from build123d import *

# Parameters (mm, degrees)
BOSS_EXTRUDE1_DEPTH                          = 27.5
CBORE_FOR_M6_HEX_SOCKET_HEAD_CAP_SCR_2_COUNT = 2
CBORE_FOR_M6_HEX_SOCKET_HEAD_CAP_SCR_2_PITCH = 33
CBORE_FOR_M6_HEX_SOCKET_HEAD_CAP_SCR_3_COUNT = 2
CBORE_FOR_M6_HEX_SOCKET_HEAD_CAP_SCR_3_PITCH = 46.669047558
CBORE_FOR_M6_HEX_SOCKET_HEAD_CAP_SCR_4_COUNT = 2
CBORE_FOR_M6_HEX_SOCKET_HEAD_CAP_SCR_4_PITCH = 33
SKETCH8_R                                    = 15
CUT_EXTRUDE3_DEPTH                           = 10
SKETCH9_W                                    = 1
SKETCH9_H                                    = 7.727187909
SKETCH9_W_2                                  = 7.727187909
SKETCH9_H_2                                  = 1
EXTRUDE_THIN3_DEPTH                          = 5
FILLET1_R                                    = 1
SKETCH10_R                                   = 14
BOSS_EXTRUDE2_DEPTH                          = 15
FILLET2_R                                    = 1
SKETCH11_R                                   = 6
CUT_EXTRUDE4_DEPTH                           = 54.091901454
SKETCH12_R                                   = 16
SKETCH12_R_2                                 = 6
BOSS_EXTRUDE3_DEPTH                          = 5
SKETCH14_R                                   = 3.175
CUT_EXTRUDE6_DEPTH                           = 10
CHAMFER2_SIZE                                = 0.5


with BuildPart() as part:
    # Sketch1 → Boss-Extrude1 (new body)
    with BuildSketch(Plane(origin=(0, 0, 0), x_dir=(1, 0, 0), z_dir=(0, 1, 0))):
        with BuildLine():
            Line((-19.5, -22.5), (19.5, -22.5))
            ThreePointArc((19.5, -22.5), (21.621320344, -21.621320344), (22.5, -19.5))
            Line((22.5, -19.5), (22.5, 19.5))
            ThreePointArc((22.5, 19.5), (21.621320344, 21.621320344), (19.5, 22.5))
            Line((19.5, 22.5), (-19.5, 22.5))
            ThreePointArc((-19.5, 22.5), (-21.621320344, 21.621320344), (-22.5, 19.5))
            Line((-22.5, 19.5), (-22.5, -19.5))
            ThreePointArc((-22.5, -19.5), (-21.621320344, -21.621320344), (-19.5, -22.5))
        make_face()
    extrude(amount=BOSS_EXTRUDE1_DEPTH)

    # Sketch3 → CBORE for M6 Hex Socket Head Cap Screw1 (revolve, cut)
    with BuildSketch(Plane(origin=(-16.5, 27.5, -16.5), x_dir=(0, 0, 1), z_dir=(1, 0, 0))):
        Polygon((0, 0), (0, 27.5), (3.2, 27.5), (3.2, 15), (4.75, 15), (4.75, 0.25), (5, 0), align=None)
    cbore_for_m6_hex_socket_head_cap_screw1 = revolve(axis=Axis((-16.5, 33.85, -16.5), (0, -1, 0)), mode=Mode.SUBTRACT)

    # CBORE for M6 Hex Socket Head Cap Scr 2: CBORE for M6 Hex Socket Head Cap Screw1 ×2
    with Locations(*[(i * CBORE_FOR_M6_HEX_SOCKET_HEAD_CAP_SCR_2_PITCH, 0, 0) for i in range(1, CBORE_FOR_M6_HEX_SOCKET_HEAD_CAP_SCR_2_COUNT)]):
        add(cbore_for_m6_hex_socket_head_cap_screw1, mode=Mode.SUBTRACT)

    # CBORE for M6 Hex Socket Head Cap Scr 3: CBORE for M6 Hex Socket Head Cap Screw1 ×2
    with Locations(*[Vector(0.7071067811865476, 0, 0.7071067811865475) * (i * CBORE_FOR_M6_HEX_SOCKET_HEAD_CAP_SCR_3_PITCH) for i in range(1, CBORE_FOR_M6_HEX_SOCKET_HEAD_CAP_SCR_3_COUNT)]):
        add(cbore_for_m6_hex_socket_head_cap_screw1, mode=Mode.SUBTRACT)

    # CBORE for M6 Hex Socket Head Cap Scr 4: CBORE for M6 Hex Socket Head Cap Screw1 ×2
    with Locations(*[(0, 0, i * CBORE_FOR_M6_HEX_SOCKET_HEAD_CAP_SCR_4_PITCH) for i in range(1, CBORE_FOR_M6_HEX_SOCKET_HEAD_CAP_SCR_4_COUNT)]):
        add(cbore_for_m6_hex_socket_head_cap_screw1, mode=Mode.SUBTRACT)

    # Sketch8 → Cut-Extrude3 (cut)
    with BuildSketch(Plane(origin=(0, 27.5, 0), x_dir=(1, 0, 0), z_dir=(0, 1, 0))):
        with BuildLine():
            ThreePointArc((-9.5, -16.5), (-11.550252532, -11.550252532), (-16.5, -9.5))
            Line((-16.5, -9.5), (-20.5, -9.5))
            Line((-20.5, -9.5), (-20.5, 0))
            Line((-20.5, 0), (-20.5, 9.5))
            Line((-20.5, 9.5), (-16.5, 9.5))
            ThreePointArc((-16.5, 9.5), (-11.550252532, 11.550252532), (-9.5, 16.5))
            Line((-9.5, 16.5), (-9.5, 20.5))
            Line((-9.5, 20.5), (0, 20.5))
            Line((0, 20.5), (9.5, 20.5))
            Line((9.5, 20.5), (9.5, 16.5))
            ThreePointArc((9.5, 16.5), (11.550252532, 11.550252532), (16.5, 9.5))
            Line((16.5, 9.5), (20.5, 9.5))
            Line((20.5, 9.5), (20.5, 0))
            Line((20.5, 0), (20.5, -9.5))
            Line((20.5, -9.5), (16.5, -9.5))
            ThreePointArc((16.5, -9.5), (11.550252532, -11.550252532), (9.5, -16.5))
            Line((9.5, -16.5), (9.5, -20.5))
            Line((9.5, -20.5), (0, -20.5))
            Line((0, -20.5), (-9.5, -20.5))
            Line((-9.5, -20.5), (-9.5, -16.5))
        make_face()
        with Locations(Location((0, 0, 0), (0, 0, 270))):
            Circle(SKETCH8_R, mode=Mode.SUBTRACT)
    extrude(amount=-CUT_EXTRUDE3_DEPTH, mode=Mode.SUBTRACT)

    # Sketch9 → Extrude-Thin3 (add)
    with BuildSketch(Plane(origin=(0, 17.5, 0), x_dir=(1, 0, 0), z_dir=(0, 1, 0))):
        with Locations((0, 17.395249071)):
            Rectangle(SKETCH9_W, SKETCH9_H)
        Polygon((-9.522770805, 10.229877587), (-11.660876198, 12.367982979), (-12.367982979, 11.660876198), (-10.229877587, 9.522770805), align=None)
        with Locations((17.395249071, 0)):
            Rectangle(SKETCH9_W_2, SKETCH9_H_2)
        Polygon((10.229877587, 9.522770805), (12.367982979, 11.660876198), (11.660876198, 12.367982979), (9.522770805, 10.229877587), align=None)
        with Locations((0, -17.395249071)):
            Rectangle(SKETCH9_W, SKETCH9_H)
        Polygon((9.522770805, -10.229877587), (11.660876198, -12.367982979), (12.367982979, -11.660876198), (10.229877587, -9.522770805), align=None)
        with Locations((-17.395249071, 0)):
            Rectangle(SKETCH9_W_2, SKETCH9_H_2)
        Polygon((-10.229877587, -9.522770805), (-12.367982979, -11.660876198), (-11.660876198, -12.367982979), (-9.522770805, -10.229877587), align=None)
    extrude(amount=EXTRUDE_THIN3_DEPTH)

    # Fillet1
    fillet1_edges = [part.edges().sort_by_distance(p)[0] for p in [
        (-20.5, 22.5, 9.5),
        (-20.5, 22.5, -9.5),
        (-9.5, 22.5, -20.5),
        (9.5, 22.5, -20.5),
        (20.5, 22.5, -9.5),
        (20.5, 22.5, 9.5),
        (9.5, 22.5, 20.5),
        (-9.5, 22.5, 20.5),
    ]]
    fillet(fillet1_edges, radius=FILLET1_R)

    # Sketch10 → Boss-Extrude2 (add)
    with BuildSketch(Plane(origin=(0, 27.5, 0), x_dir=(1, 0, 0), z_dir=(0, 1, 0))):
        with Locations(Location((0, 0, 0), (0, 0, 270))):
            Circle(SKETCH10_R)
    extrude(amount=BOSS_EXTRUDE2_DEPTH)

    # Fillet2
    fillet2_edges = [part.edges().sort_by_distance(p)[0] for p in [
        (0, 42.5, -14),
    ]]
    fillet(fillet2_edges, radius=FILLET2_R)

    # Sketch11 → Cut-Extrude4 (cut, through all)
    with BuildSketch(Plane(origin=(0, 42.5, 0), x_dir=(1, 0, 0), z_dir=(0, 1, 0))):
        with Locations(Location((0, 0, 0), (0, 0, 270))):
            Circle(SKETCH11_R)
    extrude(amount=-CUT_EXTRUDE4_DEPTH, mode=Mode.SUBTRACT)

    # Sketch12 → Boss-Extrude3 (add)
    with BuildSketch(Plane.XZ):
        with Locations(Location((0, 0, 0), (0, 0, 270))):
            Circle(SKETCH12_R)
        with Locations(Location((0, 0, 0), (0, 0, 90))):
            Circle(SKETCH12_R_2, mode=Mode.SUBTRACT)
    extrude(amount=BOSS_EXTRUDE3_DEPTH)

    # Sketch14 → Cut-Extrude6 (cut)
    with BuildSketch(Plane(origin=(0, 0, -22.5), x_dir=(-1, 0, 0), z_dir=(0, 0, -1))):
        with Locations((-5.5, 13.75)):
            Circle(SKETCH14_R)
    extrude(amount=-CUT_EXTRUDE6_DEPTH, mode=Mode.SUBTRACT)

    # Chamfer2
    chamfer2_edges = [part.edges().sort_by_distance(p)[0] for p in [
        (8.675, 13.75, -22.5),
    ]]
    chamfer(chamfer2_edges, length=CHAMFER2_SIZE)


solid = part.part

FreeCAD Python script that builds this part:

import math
import FreeCAD as App
import Part
import Sketcher
Q = App.Units.Quantity


def edges_at(feature, points):
    """Names of the edges that pass closest to the given points."""
    edges = feature.Shape.Edges
    near = lambda p: min(range(len(edges)), key=lambda i: edges[i].distToShape(Part.Vertex(*p))[0])
    return sorted({f"Edge{near(p) + 1}" for p in points})


def add_polygon(sketch, points):
    """Adds a closed chain of lines whose ends are joined by coincident constraints."""
    first, n = sketch.GeometryCount, len(points)
    for a, b in zip(points, points[1:] + points[:1]):
        sketch.addGeometry(Part.LineSegment(App.Vector(*a, 0), App.Vector(*b, 0)), False)
    for i in range(n):
        sketch.addConstraint(Sketcher.Constraint("Coincident", first + i, 2, first + (i + 1) % n, 1))

doc = App.newDocument("Part")
body = doc.addObject("PartDesign::Body", "Body")

sketch1 = body.newObject("Sketcher::SketchObject", "Sketch")
sketch1.AttachmentSupport = (doc.getObject("XZ_Plane"), [""])
sketch1.MapMode = "FlatFace"
sketch1.addGeometry([
    Part.LineSegment(App.Vector(-19.5, 22.5, 0), App.Vector(19.5, 22.5, 0)),
    Part.ArcOfCircle(Part.Circle(App.Vector(19.5, 19.5, 0), App.Vector(0, 0, 1), 3), math.radians(0), math.radians(90)),
    Part.LineSegment(App.Vector(22.5, 19.5, 0), App.Vector(22.5, -19.5, 0)),
    Part.ArcOfCircle(Part.Circle(App.Vector(19.5, -19.5, 0), App.Vector(0, 0, 1), 3), math.radians(-90), math.radians(0)),
    Part.LineSegment(App.Vector(19.5, -22.5, 0), App.Vector(-19.5, -22.5, 0)),
    Part.ArcOfCircle(Part.Circle(App.Vector(-19.5, -19.5, 0), App.Vector(0, 0, 1), 3), math.radians(180), math.radians(270)),
    Part.LineSegment(App.Vector(-22.5, -19.5, 0), App.Vector(-22.5, 19.5, 0)),
    Part.ArcOfCircle(Part.Circle(App.Vector(-19.5, 19.5, 0), App.Vector(0, 0, 1), 3), math.radians(90), math.radians(180)),
], False)
sketch1.addConstraint([
    Sketcher.Constraint("Tangent", 0, 2, 1, 2),
    Sketcher.Constraint("Tangent", 1, 1, 2, 1),
    Sketcher.Constraint("Tangent", 2, 2, 3, 2),
    Sketcher.Constraint("Tangent", 3, 1, 4, 1),
    Sketcher.Constraint("Tangent", 4, 2, 5, 2),
    Sketcher.Constraint("Tangent", 5, 1, 6, 1),
    Sketcher.Constraint("Tangent", 6, 2, 7, 2),
    Sketcher.Constraint("Tangent", 7, 1, 0, 1),
    Sketcher.Constraint("Horizontal", 0),
    Sketcher.Constraint("Vertical", 2),
    Sketcher.Constraint("Horizontal", 4),
    Sketcher.Constraint("Vertical", 6),
    Sketcher.Constraint("Equal", 1, 3),
    Sketcher.Constraint("Equal", 3, 5),
    Sketcher.Constraint("Equal", 5, 7),
    Sketcher.Constraint("Symmetric", 1, 3, 5, 3, -1, 1),
    Sketcher.Constraint("Equal", 4, 2),
    Sketcher.Constraint("Radius", 1, Q("3 mm")),
    Sketcher.Constraint("DistanceX", 0, 1, 0, 2, Q("39 mm")),
])
pad1 = body.newObject("PartDesign::Pad", "Pad")
pad1.Profile = sketch1
pad1.Length = 27.5
pad1.Reversed = True

sketch2 = body.newObject("Sketcher::SketchObject", "Sketch001")
sketch2.AttachmentSupport = (doc.getObject("YZ_Plane"), [""])
sketch2.MapMode = "FlatFace"
sketch2.AttachmentOffset = App.Placement(App.Vector(0, 0, -16.5), App.Rotation())
add_polygon(sketch2, [(0, -16.5), (27.5, -16.5), (27.5, -11.5), (27.25, -11.75), (12.5, -11.75), (12.5, -13.3), (0, -13.3)])
sketch2.addGeometry(Part.LineSegment(App.Vector(27.5, -16.5, 0), App.Vector(0, -16.5, 0)), True)
sketch2.addConstraint([
    Sketcher.Constraint("Horizontal", 0),
    Sketcher.Constraint("Vertical", 1),
    Sketcher.Constraint("Horizontal", 3),
    Sketcher.Constraint("Vertical", 4),
    Sketcher.Constraint("Horizontal", 5),
    Sketcher.Constraint("Vertical", 6),
    Sketcher.Constraint("Horizontal", 7),
    Sketcher.Constraint("Coincident", 7, 1, 0, 2),
    Sketcher.Constraint("PointOnObject", 5, 2, -2),
    Sketcher.Constraint("PointOnObject", 7, 2, -2),
    Sketcher.Constraint("DistanceY", 1, 1, 1, 2, Q("5 mm")),
    Sketcher.Constraint("Angle", 2, Q("-135 deg")),
    Sketcher.Constraint("DistanceX", 0, 1, 0, 2, Q("27.5 mm")),
    Sketcher.Constraint("DistanceX", 5, 2, 5, 1, Q("12.5 mm")),
    Sketcher.Constraint("DistanceY", 6, 2, 6, 1, Q("3.2 mm")),
    Sketcher.Constraint("DistanceX", 3, 2, 3, 1, Q("14.75 mm")),
    Sketcher.Constraint("DistanceY", 0, 2, -1, 1, Q("16.5 mm")),
])
groove = body.newObject("PartDesign::Groove", "Groove")
groove.Profile = sketch2
groove.ReferenceAxis = (sketch2, ["Axis0"])
groove.Angle = 360
doc.recompute()

linearpattern = body.newObject("PartDesign::LinearPattern", "LinearPattern")
linearpattern.Originals = [groove]
linearpattern.Direction = (doc.getObject("X_Axis"), [""])
linearpattern.Mode = "offset"
linearpattern.Offset = 33
linearpattern.Occurrences = 2
body.Tip = linearpattern
doc.recompute()

datumline = body.newObject("PartDesign::Line", "DatumLine")
datumline.Placement = App.Placement(App.Vector(0, 0, 0), App.Rotation(App.Vector(0, 0, 1), App.Vector(0.707106781, 0, 0.707106781)))
linearpattern2 = body.newObject("PartDesign::LinearPattern", "LinearPattern001")
linearpattern2.Originals = [groove]
linearpattern2.Direction = (datumline, [""])
linearpattern2.Mode = "offset"
linearpattern2.Offset = 46.669048
linearpattern2.Occurrences = 2
body.Tip = linearpattern2
doc.recompute()

linearpattern3 = body.newObject("PartDesign::LinearPattern", "LinearPattern002")
linearpattern3.Originals = [groove]
linearpattern3.Direction = (doc.getObject("Z_Axis"), [""])
linearpattern3.Mode = "offset"
linearpattern3.Offset = 33
linearpattern3.Occurrences = 2
body.Tip = linearpattern3

sketch3 = body.newObject("Sketcher::SketchObject", "Sketch002")
sketch3.AttachmentSupport = (doc.getObject("XZ_Plane"), [""])
sketch3.MapMode = "FlatFace"
sketch3.AttachmentOffset = App.Placement(App.Vector(0, 0, -27.5), App.Rotation())
sketch3.addGeometry([
    Part.ArcOfCircle(Part.Circle(App.Vector(-16.5, 16.5, 0), App.Vector(0, 0, 1), 7), math.radians(-90), math.radians(0)),
    Part.LineSegment(App.Vector(-9.5, 16.5, 0), App.Vector(-9.5, 20.5, 0)),
    Part.LineSegment(App.Vector(-9.5, 20.5, 0), App.Vector(9.5, 20.5, 0)),
    Part.LineSegment(App.Vector(9.5, 20.5, 0), App.Vector(9.5, 16.5, 0)),
    Part.ArcOfCircle(Part.Circle(App.Vector(16.5, 16.5, 0), App.Vector(0, 0, 1), 7), math.radians(-180), math.radians(-90)),
    Part.LineSegment(App.Vector(16.5, 9.5, 0), App.Vector(20.5, 9.5, 0)),
    Part.LineSegment(App.Vector(20.5, 9.5, 0), App.Vector(20.5, -9.5, 0)),
    Part.LineSegment(App.Vector(20.5, -9.5, 0), App.Vector(16.5, -9.5, 0)),
    Part.ArcOfCircle(Part.Circle(App.Vector(16.5, -16.5, 0), App.Vector(0, 0, 1), 7), math.radians(90), math.radians(180)),
    Part.LineSegment(App.Vector(9.5, -16.5, 0), App.Vector(9.5, -20.5, 0)),
    Part.LineSegment(App.Vector(9.5, -20.5, 0), App.Vector(-9.5, -20.5, 0)),
    Part.LineSegment(App.Vector(-9.5, -20.5, 0), App.Vector(-9.5, -16.5, 0)),
    Part.ArcOfCircle(Part.Circle(App.Vector(-16.5, -16.5, 0), App.Vector(0, 0, 1), 7), math.radians(0), math.radians(90)),
    Part.LineSegment(App.Vector(-16.5, -9.5, 0), App.Vector(-20.5, -9.5, 0)),
    Part.LineSegment(App.Vector(-20.5, -9.5, 0), App.Vector(-20.5, 9.5, 0)),
    Part.LineSegment(App.Vector(-20.5, 9.5, 0), App.Vector(-16.5, 9.5, 0)),
    Part.Circle(App.Vector(0, 0, 0), App.Vector(0, 0, 1), 15),
], False)
sketch3.addConstraint([
    Sketcher.Constraint("Tangent", 0, 2, 1, 1),
    Sketcher.Constraint("Coincident", 1, 2, 2, 1),
    Sketcher.Constraint("Coincident", 2, 2, 3, 1),
    Sketcher.Constraint("Tangent", 3, 2, 4, 1),
    Sketcher.Constraint("Tangent", 4, 2, 5, 1),
    Sketcher.Constraint("Coincident", 5, 2, 6, 1),
    Sketcher.Constraint("Coincident", 6, 2, 7, 1),
    Sketcher.Constraint("Tangent", 7, 2, 8, 1),
    Sketcher.Constraint("Tangent", 8, 2, 9, 1),
    Sketcher.Constraint("Coincident", 9, 2, 10, 1),
    Sketcher.Constraint("Coincident", 10, 2, 11, 1),
    Sketcher.Constraint("Tangent", 11, 2, 12, 1),
    Sketcher.Constraint("Tangent", 12, 2, 13, 1),
    Sketcher.Constraint("Coincident", 13, 2, 14, 1),
    Sketcher.Constraint("Coincident", 14, 2, 15, 1),
    Sketcher.Constraint("Tangent", 15, 2, 0, 1),
    Sketcher.Constraint("Vertical", 1),
    Sketcher.Constraint("Horizontal", 2),
    Sketcher.Constraint("Vertical", 3),
    Sketcher.Constraint("Horizontal", 5),
    Sketcher.Constraint("Vertical", 6),
    Sketcher.Constraint("Horizontal", 7),
    Sketcher.Constraint("Vertical", 9),
    Sketcher.Constraint("Horizontal", 10),
    Sketcher.Constraint("Vertical", 11),
    Sketcher.Constraint("Horizontal", 13),
    Sketcher.Constraint("Vertical", 14),
    Sketcher.Constraint("Horizontal", 15),
    Sketcher.Constraint("Coincident", 16, 3, -1, 1),
    Sketcher.Constraint("Equal", 0, 4),
    Sketcher.Constraint("Equal", 4, 8),
    Sketcher.Constraint("Equal", 8, 12),
    Sketcher.Constraint("Symmetric", 0, 3, 8, 3, -1, 1),
    Sketcher.Constraint("Symmetric", 4, 3, 12, 3, -1, 1),
    Sketcher.Constraint("Symmetric", 0, 3, 4, 3, -2),
    Sketcher.Constraint("Equal", 7, 13),
    Sketcher.Constraint("Equal", 15, 1),
    Sketcher.Constraint("Equal", 10, 6),
    Sketcher.Constraint("Equal", 3, 9),
    Sketcher.Constraint("Diameter", 16, Q("30 mm")),
    Sketcher.Constraint("Radius", 0, Q("7 mm")),
    Sketcher.Constraint("DistanceX", 2, 1, 2, 2, Q("19 mm")),
    Sketcher.Constraint("DistanceX", 5, 1, 5, 2, Q("4 mm")),
])
pocket1 = body.newObject("PartDesign::Pocket", "Pocket")
pocket1.Profile = sketch3
pocket1.Length = 10
pocket1.Reversed = True

sketch4 = body.newObject("Sketcher::SketchObject", "Sketch003")
sketch4.AttachmentSupport = (doc.getObject("XZ_Plane"), [""])
sketch4.MapMode = "FlatFace"
sketch4.AttachmentOffset = App.Placement(App.Vector(0, 0, -17.5), App.Rotation())
add_polygon(sketch4, [(-0.5, -21.3), (-0.5, -13.5), (0.5, -13.5), (0.5, -21.3)])
add_polygon(sketch4, [(-9.5, -10.2), (-11.7, -12.4), (-12.4, -11.7), (-10.2, -9.5)])
add_polygon(sketch4, [(13.5, -0.5), (13.5, 0.5), (21.3, 0.5), (21.3, -0.5)])
add_polygon(sketch4, [(10.2, -9.5), (12.4, -11.7), (11.7, -12.4), (9.5, -10.2)])
add_polygon(sketch4, [(-0.5, 13.5), (-0.5, 21.3), (0.5, 21.3), (0.5, 13.5)])
add_polygon(sketch4, [(9.5, 10.2), (11.7, 12.4), (12.4, 11.7), (10.2, 9.5)])
add_polygon(sketch4, [(-21.3, -0.5), (-21.3, 0.5), (-13.5, 0.5), (-13.5, -0.5)])
add_polygon(sketch4, [(-10.2, 9.5), (-12.4, 11.7), (-11.7, 12.4), (-9.5, 10.2)])
sketch4.addConstraint([
    Sketcher.Constraint("Vertical", 0),
    Sketcher.Constraint("Horizontal", 1),
    Sketcher.Constraint("Vertical", 2),
    Sketcher.Constraint("Horizontal", 3),
    Sketcher.Constraint("Vertical", 8),
    Sketcher.Constraint("Horizontal", 9),
    Sketcher.Constraint("Vertical", 10),
    Sketcher.Constraint("Horizontal", 11),
    Sketcher.Constraint("Vertical", 16),
    Sketcher.Constraint("Horizontal", 17),
    Sketcher.Constraint("Vertical", 18),
    Sketcher.Constraint("Horizontal", 19),
    Sketcher.Constraint("Vertical", 24),
    Sketcher.Constraint("Horizontal", 25),
    Sketcher.Constraint("Vertical", 26),
    Sketcher.Constraint("Horizontal", 27),
    Sketcher.Constraint("Symmetric", 2, 2, 16, 2, -1, 1),
    Sketcher.Constraint("Symmetric", 0, 2, 18, 2, -1, 1),
    Sketcher.Constraint("Symmetric", 4, 2, 20, 2, -1, 1),
    Sketcher.Constraint("Symmetric", 5, 2, 21, 2, -1, 1),
    Sketcher.Constraint("Symmetric", 6, 2, 22, 2, -1, 1),
    Sketcher.Constraint("Symmetric", 7, 2, 23, 2, -1, 1),
    Sketcher.Constraint("Symmetric", 10, 2, 24, 2, -1, 1),
    Sketcher.Constraint("Symmetric", 8, 2, 26, 2, -1, 1),
    Sketcher.Constraint("Symmetric", 12, 2, 28, 2, -1, 1),
    Sketcher.Constraint("Symmetric", 13, 2, 29, 2, -1, 1),
    Sketcher.Constraint("Symmetric", 14, 2, 30, 2, -1, 1),
    Sketcher.Constraint("Symmetric", 15, 2, 31, 2, -1, 1),
    Sketcher.Constraint("Symmetric", 5, 2, 12, 2, -2),
    Sketcher.Constraint("Symmetric", 4, 2, 13, 2, -2),
    Sketcher.Constraint("Symmetric", 7, 2, 14, 2, -2),
    Sketcher.Constraint("Symmetric", 6, 2, 15, 2, -2),
    Sketcher.Constraint("Perpendicular", 4, 5),
    Sketcher.Constraint("Perpendicular", 5, 6),
    Sketcher.Constraint("Perpendicular", 6, 7),
    Sketcher.Constraint("Parallel", 7, 12),
    Sketcher.Constraint("Horizontal", 9, 2, 24, 2),
    Sketcher.Constraint("Vertical", 3, 2, 16, 2),
    Sketcher.Constraint("Equal", 27, 0),
    Sketcher.Constraint("Equal", 19, 8),
    Sketcher.Constraint("DistanceX", 1, 1, 1, 2, Q("1 mm")),
    Sketcher.Constraint("Distance", 5, Q("1 mm")),
    Sketcher.Constraint("DistanceX", 4, 2, 6, 2, Q("1.430999 mm")),
    Sketcher.Constraint("DistanceX", 9, 1, 9, 2, Q("7.727188 mm")),
    Sketcher.Constraint("DistanceY", 6, 2, -1, 1, Q("9.522771 mm")),
    Sketcher.Constraint("DistanceX", 7, 2, -1, 1, Q("9.522771 mm")),
    Sketcher.Constraint("DistanceY", 3, 2, 4, 2, Q("8.89086 mm")),
    Sketcher.Constraint("DistanceX", 12, 2, 10, 2, Q("8.89086 mm")),
])
pad2 = body.newObject("PartDesign::Pad", "Pad001")
pad2.Profile = sketch4
pad2.Length = 5
pad2.Reversed = True
doc.recompute()

fillet = body.newObject("PartDesign::Fillet", "Fillet")
fillet.Base = (pad2, edges_at(pad2, [
    (-20.5, 22.5, 9.5),
    (-20.5, 22.5, -9.5),
    (-9.5, 22.5, -20.5),
    (9.5, 22.5, -20.5),
    (20.5, 22.5, -9.5),
    (20.5, 22.5, 9.5),
    (9.5, 22.5, 20.5),
    (-9.5, 22.5, 20.5),
]))
fillet.Radius = 1

sketch5 = body.newObject("Sketcher::SketchObject", "Sketch004")
sketch5.AttachmentSupport = (doc.getObject("XZ_Plane"), [""])
sketch5.MapMode = "FlatFace"
sketch5.AttachmentOffset = App.Placement(App.Vector(0, 0, -27.5), App.Rotation())
sketch5.addGeometry(Part.Circle(App.Vector(0, 0, 0), App.Vector(0, 0, 1), 14), False)
sketch5.addConstraint([
    Sketcher.Constraint("Coincident", 0, 3, -1, 1),
    Sketcher.Constraint("Diameter", 0, Q("28 mm")),
])
pad3 = body.newObject("PartDesign::Pad", "Pad002")
pad3.Profile = sketch5
pad3.Length = 15
pad3.Reversed = True
doc.recompute()

fillet2 = body.newObject("PartDesign::Fillet", "Fillet001")
fillet2.Base = (pad3, edges_at(pad3, [(0, 42.5, -14)]))
fillet2.Radius = 1

sketch6 = body.newObject("Sketcher::SketchObject", "Sketch005")
sketch6.AttachmentSupport = (doc.getObject("XZ_Plane"), [""])
sketch6.MapMode = "FlatFace"
sketch6.AttachmentOffset = App.Placement(App.Vector(0, 0, -42.5), App.Rotation())
sketch6.addGeometry(Part.Circle(App.Vector(0, 0, 0), App.Vector(0, 0, 1), 6), False)
sketch6.addConstraint([
    Sketcher.Constraint("Coincident", 0, 3, -1, 1),
    Sketcher.Constraint("Diameter", 0, Q("12 mm")),
])
pocket2 = body.newObject("PartDesign::Pocket", "Pocket001")
pocket2.Profile = sketch6
pocket2.Type = "ThroughAll"
pocket2.Reversed = True

sketch7 = body.newObject("Sketcher::SketchObject", "Sketch006")
sketch7.AttachmentSupport = (doc.getObject("XZ_Plane"), [""])
sketch7.MapMode = "FlatFace"
sketch7.addGeometry([
    Part.Circle(App.Vector(0, 0, 0), App.Vector(0, 0, 1), 16),
    Part.Circle(App.Vector(0, 0, 0), App.Vector(0, 0, 1), 6),
], False)
sketch7.addConstraint([
    Sketcher.Constraint("Coincident", 0, 3, -1, 1),
    Sketcher.Constraint("Coincident", 1, 3, -1, 1),
    Sketcher.Constraint("Diameter", 0, Q("32 mm")),
    Sketcher.Constraint("Diameter", 1, Q("12 mm")),
])
pad4 = body.newObject("PartDesign::Pad", "Pad003")
pad4.Profile = sketch7
pad4.Length = 5

sketch8 = body.newObject("Sketcher::SketchObject", "Sketch007")
sketch8.AttachmentSupport = (doc.getObject("XY_Plane"), [""])
sketch8.MapMode = "FlatFace"
sketch8.AttachmentOffset = App.Placement(App.Vector(0, 0, -22.5), App.Rotation())
sketch8.addGeometry(Part.Circle(App.Vector(5.5, 13.8, 0), App.Vector(0, 0, 1), 3.2), False)
sketch8.addConstraint([
    Sketcher.Constraint("Diameter", 0, Q("6.35 mm")),
    Sketcher.Constraint("DistanceX", -1, 1, 0, 3, Q("5.5 mm")),
    Sketcher.Constraint("DistanceY", -1, 1, 0, 3, Q("13.75 mm")),
])
pocket3 = body.newObject("PartDesign::Pocket", "Pocket002")
pocket3.Profile = sketch8
pocket3.Length = 10
pocket3.Reversed = True
doc.recompute()

chamfer = body.newObject("PartDesign::Chamfer", "Chamfer")
chamfer.Base = (pocket3, edges_at(pocket3, [(8.675, 13.75, -22.5)]))
chamfer.Size = 0.5

doc.recompute()
